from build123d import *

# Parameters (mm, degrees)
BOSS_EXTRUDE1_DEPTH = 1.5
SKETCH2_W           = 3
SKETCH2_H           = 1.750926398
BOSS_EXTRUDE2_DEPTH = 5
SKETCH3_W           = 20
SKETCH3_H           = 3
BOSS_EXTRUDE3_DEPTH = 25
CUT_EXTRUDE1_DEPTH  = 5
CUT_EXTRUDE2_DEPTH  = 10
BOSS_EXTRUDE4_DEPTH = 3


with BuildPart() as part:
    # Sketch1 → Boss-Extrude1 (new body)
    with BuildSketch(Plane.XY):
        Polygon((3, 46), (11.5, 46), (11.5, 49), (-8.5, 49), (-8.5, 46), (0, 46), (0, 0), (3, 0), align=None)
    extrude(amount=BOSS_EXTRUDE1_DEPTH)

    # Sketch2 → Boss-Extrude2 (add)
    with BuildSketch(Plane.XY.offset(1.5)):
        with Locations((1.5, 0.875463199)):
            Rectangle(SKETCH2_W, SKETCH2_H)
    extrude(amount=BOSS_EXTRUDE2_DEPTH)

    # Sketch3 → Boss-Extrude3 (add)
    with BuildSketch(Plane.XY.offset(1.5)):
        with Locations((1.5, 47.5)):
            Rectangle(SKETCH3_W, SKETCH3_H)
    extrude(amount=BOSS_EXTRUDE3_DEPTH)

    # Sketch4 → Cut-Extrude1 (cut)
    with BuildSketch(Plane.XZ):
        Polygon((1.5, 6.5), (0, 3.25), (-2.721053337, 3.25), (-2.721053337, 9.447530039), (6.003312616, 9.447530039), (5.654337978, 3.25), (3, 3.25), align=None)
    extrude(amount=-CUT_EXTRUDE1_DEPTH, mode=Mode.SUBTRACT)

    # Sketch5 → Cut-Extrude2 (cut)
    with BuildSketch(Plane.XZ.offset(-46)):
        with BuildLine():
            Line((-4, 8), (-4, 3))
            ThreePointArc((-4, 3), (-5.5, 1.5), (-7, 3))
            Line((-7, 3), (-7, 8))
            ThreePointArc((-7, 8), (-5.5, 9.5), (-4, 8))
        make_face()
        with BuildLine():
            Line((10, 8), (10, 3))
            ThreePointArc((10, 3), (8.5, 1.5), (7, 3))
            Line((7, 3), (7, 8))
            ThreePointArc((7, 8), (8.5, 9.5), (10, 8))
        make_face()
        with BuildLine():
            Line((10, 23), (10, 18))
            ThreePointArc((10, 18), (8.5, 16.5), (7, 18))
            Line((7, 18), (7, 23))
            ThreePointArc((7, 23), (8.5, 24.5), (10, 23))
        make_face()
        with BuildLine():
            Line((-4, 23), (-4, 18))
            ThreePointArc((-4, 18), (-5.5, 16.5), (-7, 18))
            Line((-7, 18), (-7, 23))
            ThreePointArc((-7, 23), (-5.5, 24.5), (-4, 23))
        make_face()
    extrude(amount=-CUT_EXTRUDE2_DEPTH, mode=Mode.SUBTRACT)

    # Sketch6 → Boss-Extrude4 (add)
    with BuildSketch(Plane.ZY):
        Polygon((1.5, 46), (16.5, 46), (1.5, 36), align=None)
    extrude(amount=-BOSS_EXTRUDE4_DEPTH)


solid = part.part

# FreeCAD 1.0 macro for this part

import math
import FreeCAD as App
import Part
import Sketcher

V = App.Vector

doc = App.newDocument("Part")
params = doc.addObject("Spreadsheet::Sheet", "Params")
for row, (alias, value) in enumerate([
    ("sketch1_width", "20 mm"),
    ("sketch1_width2", "3 mm"),
    ("sketch1_height", "46 mm"),
    ("pad1_length", "1.5 mm"),
    ("sketch2_width", "3 mm"),
    ("pad2_length", "5 mm"),
    ("sketch3_width", "20 mm"),
    ("sketch3_height", "3 mm"),
    ("pad3_length", "25 mm"),
    ("pocket1_length", "5 mm"),
    ("sketch5_radius", "1.5 mm"),
    ("sketch5_height", "5 mm"),
    ("pocket2_length", "10 mm"),
    ("sketch6_width", "10 mm"),
    ("sketch6_height", "15 mm"),
    ("pad4_length", "3 mm"),
], start=1):
    params.set(f"A{row}", alias)
    params.set(f"B{row}", "=" + value)
    params.setAlias(f"B{row}", alias)

body = doc.addObject("PartDesign::Body", "Body")

# Sketch on XY plane
sketch1 = doc.addObject("Sketcher::SketchObject", "Sketch")
body.addObject(sketch1)
sketch1.AttachmentSupport = (doc.XY_Plane, [""])
sketch1.MapMode = "FlatFace"
sketch1.addGeometry(Part.LineSegment(V(3, 46, 0), V(11.5, 46, 0)), False)
sketch1.addGeometry(Part.LineSegment(V(11.5, 46, 0), V(11.5, 49, 0)), False)
sketch1.addGeometry(Part.LineSegment(V(11.5, 49, 0), V(-8.5, 49, 0)), False)
sketch1.addGeometry(Part.LineSegment(V(-8.5, 49, 0), V(-8.5, 46, 0)), False)
sketch1.addGeometry(Part.LineSegment(V(-8.5, 46, 0), V(0, 46, 0)), False)
sketch1.addGeometry(Part.LineSegment(V(0, 46, 0), V(0, 0, 0)), False)
sketch1.addGeometry(Part.LineSegment(V(0, 0, 0), V(3, 0, 0)), False)
sketch1.addGeometry(Part.LineSegment(V(3, 0, 0), V(3, 46, 0)), False)
sketch1.addConstraint(Sketcher.Constraint("Coincident", 0, 2, 1, 1))
sketch1.addConstraint(Sketcher.Constraint("Coincident", 1, 2, 2, 1))
sketch1.addConstraint(Sketcher.Constraint("Coincident", 2, 2, 3, 1))
sketch1.addConstraint(Sketcher.Constraint("Coincident", 3, 2, 4, 1))
sketch1.addConstraint(Sketcher.Constraint("Coincident", 4, 2, 5, 1))
sketch1.addConstraint(Sketcher.Constraint("Coincident", 5, 2, 6, 1))
sketch1.addConstraint(Sketcher.Constraint("Coincident", 6, 2, 7, 1))
sketch1.addConstraint(Sketcher.Constraint("Coincident", 7, 2, 0, 1))
sketch1.addConstraint(Sketcher.Constraint("Horizontal", 0))
sketch1.addConstraint(Sketcher.Constraint("Vertical", 1))
sketch1.addConstraint(Sketcher.Constraint("Horizontal", 2))
sketch1.addConstraint(Sketcher.Constraint("Vertical", 3))
sketch1.addConstraint(Sketcher.Constraint("Horizontal", 4))
sketch1.addConstraint(Sketcher.Constraint("Vertical", 5))
sketch1.addConstraint(Sketcher.Constraint("Horizontal", 6))
sketch1.addConstraint(Sketcher.Constraint("Vertical", 7))
sketch1.addConstraint(Sketcher.Constraint("Coincident", 5, 2, -1, 1))
sketch1.addConstraint(Sketcher.Constraint("Horizontal", 0, 2, 3, 2))
sketch1.addConstraint(Sketcher.Constraint("Equal", 0, 4))
sketch1.addConstraint(Sketcher.Constraint("Equal", 6, 1))
sketch1.addConstraint(Sketcher.Constraint("DistanceX", 2, 2, 2, 1, 20.0))
sketch1.addConstraint(Sketcher.Constraint("DistanceX", 6, 1, 6, 2, 3.0))
sketch1.addConstraint(Sketcher.Constraint("DistanceY", 5, 2, 5, 1, 46.0))
sketch1.setExpression("Constraints[20]", "Params.sketch1_width")
sketch1.setExpression("Constraints[21]", "Params.sketch1_width2")
sketch1.setExpression("Constraints[22]", "Params.sketch1_height")
pad1 = doc.addObject("PartDesign::Pad", "Pad")
body.addObject(pad1)
pad1.Profile = sketch1
pad1.setExpression("Length", "Params.pad1_length")

# Sketch on XY plane
sketch2 = doc.addObject("Sketcher::SketchObject", "Sketch001")
body.addObject(sketch2)
sketch2.AttachmentSupport = (doc.XY_Plane, [""])
sketch2.MapMode = "FlatFace"
sketch2.AttachmentOffset = App.Placement(V(0, 0, 1.5), App.Rotation())
sketch2.addGeometry(Part.LineSegment(V(0, 1.750926, 0), V(0, 0, 0)), False)
sketch2.addGeometry(Part.LineSegment(V(0, 0, 0), V(3, 0, 0)), False)
sketch2.addGeometry(Part.LineSegment(V(3, 0, 0), V(3, 1.750926, 0)), False)
sketch2.addGeometry(Part.LineSegment(V(3, 1.750926, 0), V(0, 1.750926, 0)), False)
sketch2.addConstraint(Sketcher.Constraint("Coincident", 0, 2, 1, 1))
sketch2.addConstraint(Sketcher.Constraint("Coincident", 1, 2, 2, 1))
sketch2.addConstraint(Sketcher.Constraint("Coincident", 2, 2, 3, 1))
sketch2.addConstraint(Sketcher.Constraint("Coincident", 3, 2, 0, 1))
sketch2.addConstraint(Sketcher.Constraint("Vertical", 0))
sketch2.addConstraint(Sketcher.Constraint("Horizontal", 1))
sketch2.addConstraint(Sketcher.Constraint("Vertical", 2))
sketch2.addConstraint(Sketcher.Constraint("Horizontal", 3))
sketch2.addConstraint(Sketcher.Constraint("Coincident", 0, 2, -1, 1))
sketch2.addConstraint(Sketcher.Constraint("DistanceX", 1, 1, 1, 2, 3.0))
sketch2.addConstraint(Sketcher.Constraint("DistanceY", 0, 2, 0, 1, 1.750926))
sketch2.setExpression("Constraints[9]", "Params.sketch2_width")
pad2 = doc.addObject("PartDesign::Pad", "Pad001")
body.addObject(pad2)
pad2.Profile = sketch2
pad2.setExpression("Length", "Params.pad2_length")

# Sketch on XY plane
sketch3 = doc.addObject("Sketcher::SketchObject", "Sketch002")
body.addObject(sketch3)
sketch3.AttachmentSupport = (doc.XY_Plane, [""])
sketch3.MapMode = "FlatFace"
sketch3.AttachmentOffset = App.Placement(V(0, 0, 1.5), App.Rotation())
sketch3.addGeometry(Part.LineSegment(V(-8.5, 49, 0), V(-8.5, 46, 0)), False)
sketch3.addGeometry(Part.LineSegment(V(-8.5, 46, 0), V(11.5, 46, 0)), False)
sketch3.addGeometry(Part.LineSegment(V(11.5, 46, 0), V(11.5, 49, 0)), False)
sketch3.addGeometry(Part.LineSegment(V(11.5, 49, 0), V(-8.5, 49, 0)), False)
sketch3.addConstraint(Sketcher.Constraint("Coincident", 0, 2, 1, 1))
sketch3.addConstraint(Sketcher.Constraint("Coincident", 1, 2, 2, 1))
sketch3.addConstraint(Sketcher.Constraint("Coincident", 2, 2, 3, 1))
sketch3.addConstraint(Sketcher.Constraint("Coincident", 3, 2, 0, 1))
sketch3.addConstraint(Sketcher.Constraint("Vertical", 0))
sketch3.addConstraint(Sketcher.Constraint("Horizontal", 1))
sketch3.addConstraint(Sketcher.Constraint("Vertical", 2))
sketch3.addConstraint(Sketcher.Constraint("Horizontal", 3))
sketch3.addConstraint(Sketcher.Constraint("DistanceX", 1, 1, 1, 2, 20.0))
sketch3.addConstraint(Sketcher.Constraint("DistanceY", 0, 2, 0, 1, 3.0))
sketch3.addConstraint(Sketcher.Constraint("DistanceY", -1, 1, 0, 2, 46.0))
sketch3.addConstraint(Sketcher.Constraint("DistanceX", 0, 2, -1, 1, 8.5))
sketch3.setExpression("Constraints[8]", "Params.sketch3_width")
sketch3.setExpression("Constraints[9]", "Params.sketch3_height")
pad3 = doc.addObject("PartDesign::Pad", "Pad002")
body.addObject(pad3)
pad3.Profile = sketch3
pad3.setExpression("Length", "Params.pad3_length")

# Sketch on XZ plane
sketch4 = doc.addObject("Sketcher::SketchObject", "Sketch003")
body.addObject(sketch4)
sketch4.AttachmentSupport = (doc.XZ_Plane, [""])
sketch4.MapMode = "FlatFace"
sketch4.addGeometry(Part.LineSegment(V(0, 3.25, 0), V(1.5, 6.5, 0)), False)
sketch4.addGeometry(Part.LineSegment(V(1.5, 6.5, 0), V(3, 3.25, 0)), False)
sketch4.addGeometry(Part.LineSegment(V(3, 3.25, 0), V(5.654338, 3.25, 0)), False)
sketch4.addGeometry(Part.LineSegment(V(5.654338, 3.25, 0), V(6.003313, 9.44753, 0)), False)
sketch4.addGeometry(Part.LineSegment(V(6.003313, 9.44753, 0), V(-2.721053, 9.44753, 0)), False)
sketch4.addGeometry(Part.LineSegment(V(-2.721053, 9.44753, 0), V(-2.721053, 3.25, 0)), False)
sketch4.addGeometry(Part.LineSegment(V(-2.721053, 3.25, 0), V(0, 3.25, 0)), False)
sketch4.addConstraint(Sketcher.Constraint("Coincident", 0, 2, 1, 1))
sketch4.addConstraint(Sketcher.Constraint("Coincident", 1, 2, 2, 1))
sketch4.addConstraint(Sketcher.Constraint("Coincident", 2, 2, 3, 1))
sketch4.addConstraint(Sketcher.Constraint("Coincident", 3, 2, 4, 1))
sketch4.addConstraint(Sketcher.Constraint("Coincident", 4, 2, 5, 1))
sketch4.addConstraint(Sketcher.Constraint("Coincident", 5, 2, 6, 1))
sketch4.addConstraint(Sketcher.Constraint("Coincident", 6, 2, 0, 1))
sketch4.addConstraint(Sketcher.Constraint("Horizontal", 2))
sketch4.addConstraint(Sketcher.Constraint("Horizontal", 4))
sketch4.addConstraint(Sketcher.Constraint("Vertical", 5))
sketch4.addConstraint(Sketcher.Constraint("Horizontal", 6))
sketch4.addConstraint(Sketcher.Constraint("PointOnObject", 6, 2, -2))
sketch4.addConstraint(Sketcher.Constraint("Horizontal", 2, 2, 5, 2))
sketch4.addConstraint(Sketcher.Constraint("Equal", 0, 1))
sketch4.addConstraint(Sketcher.Constraint("DistanceX", -1, 1, 1, 2, 3.0))
sketch4.addConstraint(Sketcher.Constraint("DistanceY", -1, 1, 0, 2, 6.5))
sketch4.addConstraint(Sketcher.Constraint("DistanceY", -1, 1, 1, 2, 3.25))
sketch4.addConstraint(Sketcher.Constraint("DistanceY", 5, 2, 5, 1, 6.19753))
sketch4.addConstraint(Sketcher.Constraint("DistanceX", 2, 1, 2, 2, 2.654338))
sketch4.addConstraint(Sketcher.Constraint("DistanceX", 4, 2, 4, 1, 8.724366))
sketch4.addConstraint(Sketcher.Constraint("DistanceX", 6, 1, 6, 2, 2.721053))
pocket1 = doc.addObject("PartDesign::Pocket", "Pocket")
body.addObject(pocket1)
pocket1.Profile = sketch4
pocket1.setExpression("Length", "Params.pocket1_length")

# Sketch on XZ plane
sketch5 = doc.addObject("Sketcher::SketchObject", "Sketch004")
body.addObject(sketch5)
sketch5.AttachmentSupport = (doc.XZ_Plane, [""])
sketch5.MapMode = "FlatFace"
sketch5.AttachmentOffset = App.Placement(V(0, 0, -46), App.Rotation())
sketch5.addGeometry(Part.LineSegment(V(-4, 3, 0), V(-4, 8, 0)), False)
sketch5.addGeometry(Part.ArcOfCircle(Part.Circle(V(-5.5, 8, 0), V(0, 0, 1), 1.5), math.radians(0), math.radians(180)), False)
sketch5.addGeometry(Part.LineSegment(V(-7, 8, 0), V(-7, 3, 0)), False)
sketch5.addGeometry(Part.ArcOfCircle(Part.Circle(V(-5.5, 3, 0), V(0, 0, 1), 1.5), math.radians(180), math.radians(360)), False)
sketch5.addGeometry(Part.LineSegment(V(10, 3, 0), V(10, 8, 0)), False)
sketch5.addGeometry(Part.ArcOfCircle(Part.Circle(V(8.5, 8, 0), V(0, 0, 1), 1.5), math.radians(0), math.radians(180)), False)
sketch5.addGeometry(Part.LineSegment(V(7, 8, 0), V(7, 3, 0)), False)
sketch5.addGeometry(Part.ArcOfCircle(Part.Circle(V(8.5, 3, 0), V(0, 0, 1), 1.5), math.radians(180), math.radians(360)), False)
sketch5.addGeometry(Part.LineSegment(V(10, 18, 0), V(10, 23, 0)), False)
sketch5.addGeometry(Part.ArcOfCircle(Part.Circle(V(8.5, 23, 0), V(0, 0, 1), 1.5), math.radians(0), math.radians(180)), False)
sketch5.addGeometry(Part.LineSegment(V(7, 23, 0), V(7, 18, 0)), False)
sketch5.addGeometry(Part.ArcOfCircle(Part.Circle(V(8.5, 18, 0), V(0, 0, 1), 1.5), math.radians(180), math.radians(360)), False)
sketch5.addGeometry(Part.LineSegment(V(-4, 18, 0), V(-4, 23, 0)), False)
sketch5.addGeometry(Part.ArcOfCircle(Part.Circle(V(-5.5, 23, 0), V(0, 0, 1), 1.5), math.radians(0), math.radians(180)), False)
sketch5.addGeometry(Part.LineSegment(V(-7, 23, 0), V(-7, 18, 0)), False)
sketch5.addGeometry(Part.ArcOfCircle(Part.Circle(V(-5.5, 18, 0), V(0, 0, 1), 1.5), math.radians(180), math.radians(360)), False)
sketch5.addConstraint(Sketcher.Constraint("Tangent", 0, 2, 1, 1))
sketch5.addConstraint(Sketcher.Constraint("Tangent", 1, 2, 2, 1))
sketch5.addConstraint(Sketcher.Constraint("Tangent", 2, 2, 3, 1))
sketch5.addConstraint(Sketcher.Constraint("Tangent", 3, 2, 0, 1))
sketch5.addConstraint(Sketcher.Constraint("Tangent", 4, 2, 5, 1))
sketch5.addConstraint(Sketcher.Constraint("Tangent", 5, 2, 6, 1))
sketch5.addConstraint(Sketcher.Constraint("Tangent", 6, 2, 7, 1))
sketch5.addConstraint(Sketcher.Constraint("Tangent", 7, 2, 4, 1))
sketch5.addConstraint(Sketcher.Constraint("Tangent", 8, 2, 9, 1))
sketch5.addConstraint(Sketcher.Constraint("Tangent", 9, 2, 10, 1))
sketch5.addConstraint(Sketcher.Constraint("Tangent", 10, 2, 11, 1))
sketch5.addConstraint(Sketcher.Constraint("Tangent", 11, 2, 8, 1))
sketch5.addConstraint(Sketcher.Constraint("Tangent", 12, 2, 13, 1))
sketch5.addConstraint(Sketcher.Constraint("Tangent", 13, 2, 14, 1))
sketch5.addConstraint(Sketcher.Constraint("Tangent", 14, 2, 15, 1))
sketch5.addConstraint(Sketcher.Constraint("Tangent", 15, 2, 12, 1))
sketch5.addConstraint(Sketcher.Constraint("Vertical", 0))
sketch5.addConstraint(Sketcher.Constraint("Vertical", 2))
sketch5.addConstraint(Sketcher.Constraint("Vertical", 4))
sketch5.addConstraint(Sketcher.Constraint("Vertical", 6))
sketch5.addConstraint(Sketcher.Constraint("Vertical", 8))
sketch5.addConstraint(Sketcher.Constraint("Vertical", 10))
sketch5.addConstraint(Sketcher.Constraint("Vertical", 12))
sketch5.addConstraint(Sketcher.Constraint("Vertical", 14))
sketch5.addConstraint(Sketcher.Constraint("Equal", 3, 5))
sketch5.addConstraint(Sketcher.Constraint("Equal", 7, 9))
sketch5.addConstraint(Sketcher.Constraint("Equal", 11, 13))
sketch5.addConstraint(Sketcher.Constraint("Symmetric", 1, 2, 5, 2, -2))
sketch5.addConstraint(Sketcher.Constraint("Symmetric", 9, 2, 13, 2, -2))
sketch5.addConstraint(Sketcher.Constraint("Horizontal", 3, 3, 7, 3))
sketch5.addConstraint(Sketcher.Constraint("Horizontal", 11, 3, 15, 3))
sketch5.addConstraint(Sketcher.Constraint("Vertical", 7, 3, 9, 3))
sketch5.addConstraint(Sketcher.Constraint("Equal", 6, 8))
sketch5.addConstraint(Sketcher.Constraint("Radius", 1, 1.5))
sketch5.addConstraint(Sketcher.Constraint("DistanceY", 0, 1, 0, 2, 5.0))
sketch5.addConstraint(Sketcher.Constraint("DistanceY", -1, 1, 1, 3, 8.0))
sketch5.addConstraint(Sketcher.Constraint("DistanceY", -1, 1, 9, 3, 23.0))
sketch5.addConstraint(Sketcher.Constraint("DistanceX", 0, 2, -1, 1, 4.0))
sketch5.setExpression("Constraints[33]", "Params.sketch5_radius")
sketch5.setExpression("Constraints[34]", "Params.sketch5_height")
pocket2 = doc.addObject("PartDesign::Pocket", "Pocket001")
body.addObject(pocket2)
pocket2.Profile = sketch5
pocket2.setExpression("Length", "Params.pocket2_length")

# Sketch on YZ plane
sketch6 = doc.addObject("Sketcher::SketchObject", "Sketch005")
body.addObject(sketch6)
sketch6.AttachmentSupport = (doc.YZ_Plane, [""])
sketch6.MapMode = "FlatFace"
sketch6.addGeometry(Part.LineSegment(V(46, 16.5, 0), V(46, 1.5, 0)), False)
sketch6.addGeometry(Part.LineSegment(V(46, 1.5, 0), V(36, 1.5, 0)), False)
sketch6.addGeometry(Part.LineSegment(V(36, 1.5, 0), V(46, 16.5, 0)), False)
sketch6.addConstraint(Sketcher.Constraint("Coincident", 0, 2, 1, 1))
sketch6.addConstraint(Sketcher.Constraint("Coincident", 1, 2, 2, 1))
sketch6.addConstraint(Sketcher.Constraint("Coincident", 2, 2, 0, 1))
sketch6.addConstraint(Sketcher.Constraint("Vertical", 0))
sketch6.addConstraint(Sketcher.Constraint("Horizontal", 1))
sketch6.addConstraint(Sketcher.Constraint("DistanceX", 1, 2, 1, 1, 10.0))
sketch6.addConstraint(Sketcher.Constraint("DistanceY", 0, 2, 0, 1, 15.0))
sketch6.addConstraint(Sketcher.Constraint("DistanceX", -1, 1, 0, 2, 46.0))
sketch6.addConstraint(Sketcher.Constraint("DistanceY", -1, 1, 0, 2, 1.5))
sketch6.setExpression("Constraints[5]", "Params.sketch6_width")
sketch6.setExpression("Constraints[6]", "Params.sketch6_height")
pad4 = doc.addObject("PartDesign::Pad", "Pad003")
body.addObject(pad4)
pad4.Profile = sketch6
pad4.setExpression("Length", "Params.pad4_length")

doc.recompute()
